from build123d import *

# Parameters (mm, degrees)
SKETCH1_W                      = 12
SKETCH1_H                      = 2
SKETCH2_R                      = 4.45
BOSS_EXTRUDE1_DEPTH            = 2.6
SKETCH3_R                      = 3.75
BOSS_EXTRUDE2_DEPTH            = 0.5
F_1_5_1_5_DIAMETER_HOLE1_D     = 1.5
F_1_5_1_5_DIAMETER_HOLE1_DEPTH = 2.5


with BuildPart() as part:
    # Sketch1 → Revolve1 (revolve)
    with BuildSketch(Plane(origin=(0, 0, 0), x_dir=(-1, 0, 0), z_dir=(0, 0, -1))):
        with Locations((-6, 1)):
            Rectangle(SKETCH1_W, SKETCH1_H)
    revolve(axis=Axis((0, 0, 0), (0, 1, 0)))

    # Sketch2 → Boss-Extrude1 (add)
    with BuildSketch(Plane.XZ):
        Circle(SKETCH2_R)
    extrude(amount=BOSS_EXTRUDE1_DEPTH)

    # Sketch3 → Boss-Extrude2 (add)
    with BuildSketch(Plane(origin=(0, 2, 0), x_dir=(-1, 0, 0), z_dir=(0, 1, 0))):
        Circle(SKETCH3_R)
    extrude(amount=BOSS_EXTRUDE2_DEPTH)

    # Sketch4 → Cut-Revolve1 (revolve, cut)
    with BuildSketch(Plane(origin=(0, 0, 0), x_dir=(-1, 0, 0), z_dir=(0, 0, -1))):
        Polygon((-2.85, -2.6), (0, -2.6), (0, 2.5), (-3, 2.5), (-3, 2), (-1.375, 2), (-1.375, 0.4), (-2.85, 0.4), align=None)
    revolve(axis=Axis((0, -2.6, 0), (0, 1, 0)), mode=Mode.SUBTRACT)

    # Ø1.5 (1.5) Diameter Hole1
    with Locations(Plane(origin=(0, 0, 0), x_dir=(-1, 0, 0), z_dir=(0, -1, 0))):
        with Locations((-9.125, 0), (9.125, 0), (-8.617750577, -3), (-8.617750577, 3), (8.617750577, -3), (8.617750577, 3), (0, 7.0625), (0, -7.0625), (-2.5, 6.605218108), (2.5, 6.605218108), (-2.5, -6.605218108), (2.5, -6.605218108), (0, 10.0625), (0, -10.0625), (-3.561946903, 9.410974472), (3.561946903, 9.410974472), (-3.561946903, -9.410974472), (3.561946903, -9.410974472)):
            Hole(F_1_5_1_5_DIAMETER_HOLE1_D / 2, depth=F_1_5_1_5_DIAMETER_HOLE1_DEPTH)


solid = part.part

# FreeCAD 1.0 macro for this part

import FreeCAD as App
import Part
import Sketcher
from FreeCAD import Vector
Q = App.Units.Quantity


def add_polygon(sketch, points):
    """Adds a closed chain of lines whose ends are joined by coincident constraints."""
    first, n = sketch.GeometryCount, len(points)
    for a, b in zip(points, points[1:] + points[:1]):
        sketch.addGeometry(Part.LineSegment(App.Vector(*a, 0), App.Vector(*b, 0)), False)
    for i in range(n):
        sketch.addConstraint(Sketcher.Constraint("Coincident", first + i, 2, first + (i + 1) % n, 1))

doc = App.newDocument("Part")
body = doc.addObject("PartDesign::Body", "Body")

sketch1 = body.newObject("Sketcher::SketchObject", "Sketch")
sketch1.AttachmentSupport = (doc.getObject("XY_Plane"), [""])
sketch1.MapMode = "FlatFace"
add_polygon(sketch1, [(12, 2), (12, 0), (0, 0), (0, 2)])
sketch1.addConstraint(Sketcher.Constraint("Vertical", 0))
sketch1.addConstraint(Sketcher.Constraint("Horizontal", 1))
sketch1.addConstraint(Sketcher.Constraint("Vertical", 2))
sketch1.addConstraint(Sketcher.Constraint("Horizontal", 3))
sketch1.addConstraint(Sketcher.Constraint("Coincident", 1, 2, -1, 1))
sketch1.addConstraint(Sketcher.Constraint("DistanceX", 1, 2, 1, 1, Q("12 mm")))
sketch1.addConstraint(Sketcher.Constraint("DistanceY", 0, 2, 0, 1, Q("2 mm")))
revolution = body.newObject("PartDesign::Revolution", "Revolution")
revolution.Profile = sketch1
revolution.ReferenceAxis = (sketch1, ["V_Axis"])
revolution.Angle = 360

sketch2 = body.newObject("Sketcher::SketchObject", "Sketch001")
sketch2.AttachmentSupport = (doc.getObject("XZ_Plane"), [""])
sketch2.MapMode = "FlatFace"
sketch2.addGeometry(Part.Circle(Vector(0, 0, 0), Vector(0, 0, 1), 4.5), False)
sketch2.addConstraint(Sketcher.Constraint("Coincident", 0, 3, -1, 1))
sketch2.addConstraint(Sketcher.Constraint("Diameter", 0, Q("8.9 mm")))
pad1 = body.newObject("PartDesign::Pad", "Pad")
pad1.Profile = sketch2
pad1.Length = 2.6

sketch3 = body.newObject("Sketcher::SketchObject", "Sketch002")
sketch3.AttachmentSupport = (doc.getObject("XZ_Plane"), [""])
sketch3.MapMode = "FlatFace"
sketch3.AttachmentOffset = App.Placement(Vector(0, 0, -2), App.Rotation())
sketch3.addGeometry(Part.Circle(Vector(0, 0, 0), Vector(0, 0, 1), 3.8), False)
sketch3.addConstraint(Sketcher.Constraint("Coincident", 0, 3, -1, 1))
sketch3.addConstraint(Sketcher.Constraint("Diameter", 0, Q("7.5 mm")))
pad2 = body.newObject("PartDesign::Pad", "Pad001")
pad2.Profile = sketch3
pad2.Length = 0.5
pad2.Reversed = True

sketch4 = body.newObject("Sketcher::SketchObject", "Sketch003")
sketch4.AttachmentSupport = (doc.getObject("XY_Plane"), [""])
sketch4.MapMode = "FlatFace"
add_polygon(sketch4, [(2.9, -2.6), (0, -2.6), (0, 2.5), (3, 2.5), (3, 2), (1.4, 2), (1.4, 0.4), (2.9, 0.4)])
sketch4.addConstraint(Sketcher.Constraint("Horizontal", 0))
sketch4.addConstraint(Sketcher.Constraint("Vertical", 1))
sketch4.addConstraint(Sketcher.Constraint("Horizontal", 2))
sketch4.addConstraint(Sketcher.Constraint("Vertical", 3))
sketch4.addConstraint(Sketcher.Constraint("Horizontal", 4))
sketch4.addConstraint(Sketcher.Constraint("Vertical", 5))
sketch4.addConstraint(Sketcher.Constraint("Horizontal", 6))
sketch4.addConstraint(Sketcher.Constraint("Vertical", 7))
sketch4.addConstraint(Sketcher.Constraint("PointOnObject", 0, 2, -2))
sketch4.addConstraint(Sketcher.Constraint("Equal", 2, 7))
sketch4.addConstraint(Sketcher.Constraint("DistanceX", 2, 1, 2, 2, Q("3 mm")))
sketch4.addConstraint(Sketcher.Constraint("DistanceY", 1, 1, 1, 2, Q("5.1 mm")))
sketch4.addConstraint(Sketcher.Constraint("DistanceY", 3, 2, 3, 1, Q("0.5 mm")))
sketch4.addConstraint(Sketcher.Constraint("DistanceY", -1, 1, 3, 2, Q("2 mm")))
sketch4.addConstraint(Sketcher.Constraint("DistanceX", 0, 2, 0, 1, Q("2.85 mm")))
sketch4.addConstraint(Sketcher.Constraint("DistanceX", 4, 2, 4, 1, Q("1.625 mm")))
groove = body.newObject("PartDesign::Groove", "Groove")
groove.Profile = sketch4
groove.ReferenceAxis = (sketch4, ["V_Axis"])
groove.Angle = 360

sketch5 = body.newObject("Sketcher::SketchObject", "Sketch004")
sketch5.AttachmentSupport = (doc.getObject("XZ_Plane"), [""])
sketch5.MapMode = "FlatFace"
sketch5.addGeometry(Part.Circle(Vector(9.1, 0, 0), Vector(0, 0, 1), 0.8), False)
sketch5.addGeometry(Part.Circle(Vector(-9.1, 0, 0), Vector(0, 0, 1), 0.8), False)
sketch5.addGeometry(Part.Circle(Vector(8.6, 3, 0), Vector(0, 0, 1), 0.8), False)
sketch5.addGeometry(Part.Circle(Vector(8.6, -3, 0), Vector(0, 0, 1), 0.8), False)
sketch5.addGeometry(Part.Circle(Vector(-8.6, 3, 0), Vector(0, 0, 1), 0.8), False)
sketch5.addGeometry(Part.Circle(Vector(-8.6, -3, 0), Vector(0, 0, 1), 0.8), False)
sketch5.addGeometry(Part.Circle(Vector(0, -7.1, 0), Vector(0, 0, 1), 0.8), False)
sketch5.addGeometry(Part.Circle(Vector(0, 7.1, 0), Vector(0, 0, 1), 0.8), False)
sketch5.addGeometry(Part.Circle(Vector(2.5, -6.6, 0), Vector(0, 0, 1), 0.8), False)
sketch5.addGeometry(Part.Circle(Vector(-2.5, -6.6, 0), Vector(0, 0, 1), 0.8), False)
sketch5.addGeometry(Part.Circle(Vector(2.5, 6.6, 0), Vector(0, 0, 1), 0.8), False)
sketch5.addGeometry(Part.Circle(Vector(-2.5, 6.6, 0), Vector(0, 0, 1), 0.8), False)
sketch5.addGeometry(Part.Circle(Vector(0, -10.1, 0), Vector(0, 0, 1), 0.8), False)
sketch5.addGeometry(Part.Circle(Vector(0, 10.1, 0), Vector(0, 0, 1), 0.8), False)
sketch5.addGeometry(Part.Circle(Vector(3.6, -9.4, 0), Vector(0, 0, 1), 0.8), False)
sketch5.addGeometry(Part.Circle(Vector(-3.6, -9.4, 0), Vector(0, 0, 1), 0.8), False)
sketch5.addGeometry(Part.Circle(Vector(3.6, 9.4, 0), Vector(0, 0, 1), 0.8), False)
sketch5.addGeometry(Part.Circle(Vector(-3.6, 9.4, 0), Vector(0, 0, 1), 0.8), False)
sketch5.addConstraint(Sketcher.Constraint("Equal", 0, 1))
sketch5.addConstraint(Sketcher.Constraint("Equal", 1, 2))
sketch5.addConstraint(Sketcher.Constraint("Equal", 2, 3))
sketch5.addConstraint(Sketcher.Constraint("Equal", 3, 4))
sketch5.addConstraint(Sketcher.Constraint("Equal", 4, 5))
sketch5.addConstraint(Sketcher.Constraint("Equal", 5, 6))
sketch5.addConstraint(Sketcher.Constraint("Equal", 6, 7))
sketch5.addConstraint(Sketcher.Constraint("Equal", 7, 8))
sketch5.addConstraint(Sketcher.Constraint("Equal", 8, 9))
sketch5.addConstraint(Sketcher.Constraint("Equal", 9, 10))
sketch5.addConstraint(Sketcher.Constraint("Equal", 10, 11))
sketch5.addConstraint(Sketcher.Constraint("Equal", 11, 12))
sketch5.addConstraint(Sketcher.Constraint("Equal", 12, 13))
sketch5.addConstraint(Sketcher.Constraint("Equal", 13, 14))
sketch5.addConstraint(Sketcher.Constraint("Equal", 14, 15))
sketch5.addConstraint(Sketcher.Constraint("Equal", 15, 16))
sketch5.addConstraint(Sketcher.Constraint("Equal", 16, 17))
sketch5.addConstraint(Sketcher.Constraint("Symmetric", 0, 3, 1, 3, -1, 1))
sketch5.addConstraint(Sketcher.Constraint("Symmetric", 3, 3, 4, 3, -1, 1))
sketch5.addConstraint(Sketcher.Constraint("Symmetric", 2, 3, 5, 3, -1, 1))
sketch5.addConstraint(Sketcher.Constraint("Symmetric", 6, 3, 7, 3, -1, 1))
sketch5.addConstraint(Sketcher.Constraint("Symmetric", 9, 3, 10, 3, -1, 1))
sketch5.addConstraint(Sketcher.Constraint("Symmetric", 8, 3, 11, 3, -1, 1))
sketch5.addConstraint(Sketcher.Constraint("Symmetric", 12, 3, 13, 3, -1, 1))
sketch5.addConstraint(Sketcher.Constraint("Symmetric", 15, 3, 16, 3, -1, 1))
sketch5.addConstraint(Sketcher.Constraint("Symmetric", 14, 3, 17, 3, -1, 1))
sketch5.addConstraint(Sketcher.Constraint("Symmetric", 2, 3, 4, 3, -2))
sketch5.addConstraint(Sketcher.Constraint("Symmetric", 8, 3, 9, 3, -2))
sketch5.addConstraint(Sketcher.Constraint("Symmetric", 14, 3, 15, 3, -2))
sketch5.addConstraint(Sketcher.Constraint("PointOnObject", 0, 3, -1))
sketch5.addConstraint(Sketcher.Constraint("PointOnObject", 6, 3, -2))
sketch5.addConstraint(Sketcher.Constraint("PointOnObject", 12, 3, -2))
sketch5.addConstraint(Sketcher.Constraint("Diameter", 0, Q("1.5 mm")))
sketch5.addConstraint(Sketcher.Constraint("DistanceY", -1, 1, 2, 3, Q("3 mm")))
sketch5.addConstraint(Sketcher.Constraint("DistanceX", 9, 3, 8, 3, Q("5 mm")))
sketch5.addConstraint(Sketcher.Constraint("DistanceY", 12, 3, 6, 3, Q("3 mm")))
sketch5.addConstraint(Sketcher.Constraint("DistanceX", 1, 3, 0, 3, Q("18.25 mm")))
sketch5.addConstraint(Sketcher.Constraint("DistanceY", 6, 3, -1, 1, Q("7.0625 mm")))
sketch5.addConstraint(Sketcher.Constraint("DistanceX", 4, 3, 2, 3, Q("17.235501 mm")))
sketch5.addConstraint(Sketcher.Constraint("DistanceY", 8, 3, -1, 1, Q("6.605218 mm")))
sketch5.addConstraint(Sketcher.Constraint("DistanceX", -1, 1, 14, 3, Q("3.561947 mm")))
sketch5.addConstraint(Sketcher.Constraint("DistanceY", 14, 3, -1, 1, Q("9.410974 mm")))
doc.recompute()
hole = body.newObject("PartDesign::Hole", "Hole")
hole.Profile = sketch5
hole.ThreadType = "None"
hole.Diameter = 1.5
hole.DepthType = "Dimension"
hole.Depth = 2.5
hole.DrillPoint = "Flat"

doc.recompute()
